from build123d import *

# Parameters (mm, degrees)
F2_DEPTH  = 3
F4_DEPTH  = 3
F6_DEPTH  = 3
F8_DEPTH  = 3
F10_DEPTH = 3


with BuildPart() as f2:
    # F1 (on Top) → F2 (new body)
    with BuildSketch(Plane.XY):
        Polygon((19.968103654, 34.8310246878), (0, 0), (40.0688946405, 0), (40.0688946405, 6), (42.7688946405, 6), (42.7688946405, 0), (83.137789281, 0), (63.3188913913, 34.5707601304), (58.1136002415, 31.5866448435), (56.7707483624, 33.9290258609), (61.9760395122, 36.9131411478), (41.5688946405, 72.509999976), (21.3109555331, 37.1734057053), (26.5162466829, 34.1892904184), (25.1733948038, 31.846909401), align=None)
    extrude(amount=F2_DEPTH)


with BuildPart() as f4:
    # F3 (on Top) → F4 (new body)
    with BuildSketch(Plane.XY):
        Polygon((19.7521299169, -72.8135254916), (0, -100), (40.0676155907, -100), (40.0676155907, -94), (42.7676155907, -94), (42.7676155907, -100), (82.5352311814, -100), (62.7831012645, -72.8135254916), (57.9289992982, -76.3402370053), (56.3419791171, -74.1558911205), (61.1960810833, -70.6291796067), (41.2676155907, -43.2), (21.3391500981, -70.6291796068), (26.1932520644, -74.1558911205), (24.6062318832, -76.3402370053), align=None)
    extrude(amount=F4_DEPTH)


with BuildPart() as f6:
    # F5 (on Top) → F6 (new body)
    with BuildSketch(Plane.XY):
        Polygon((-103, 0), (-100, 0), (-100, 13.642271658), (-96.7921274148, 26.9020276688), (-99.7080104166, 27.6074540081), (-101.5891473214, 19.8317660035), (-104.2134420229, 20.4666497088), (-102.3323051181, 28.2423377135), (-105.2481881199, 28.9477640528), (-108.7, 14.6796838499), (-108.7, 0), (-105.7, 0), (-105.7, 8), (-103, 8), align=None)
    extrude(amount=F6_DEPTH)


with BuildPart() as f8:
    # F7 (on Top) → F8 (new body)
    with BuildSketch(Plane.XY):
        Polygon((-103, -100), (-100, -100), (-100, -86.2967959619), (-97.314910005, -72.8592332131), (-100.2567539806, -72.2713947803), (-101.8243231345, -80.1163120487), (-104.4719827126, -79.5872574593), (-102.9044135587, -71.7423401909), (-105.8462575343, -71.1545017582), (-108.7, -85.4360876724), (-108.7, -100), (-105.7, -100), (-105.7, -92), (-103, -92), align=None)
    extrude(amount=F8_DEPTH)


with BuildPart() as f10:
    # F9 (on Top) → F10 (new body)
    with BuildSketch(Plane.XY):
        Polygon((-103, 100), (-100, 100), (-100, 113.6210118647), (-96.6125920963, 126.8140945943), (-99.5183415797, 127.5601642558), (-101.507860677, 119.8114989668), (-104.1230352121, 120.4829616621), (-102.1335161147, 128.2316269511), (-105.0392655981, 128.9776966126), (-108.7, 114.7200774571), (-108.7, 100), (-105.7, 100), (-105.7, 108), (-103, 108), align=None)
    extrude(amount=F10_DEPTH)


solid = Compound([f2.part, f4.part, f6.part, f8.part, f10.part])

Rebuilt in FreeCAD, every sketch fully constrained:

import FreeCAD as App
import Part
import Sketcher

V = App.Vector
Q = App.Units.Quantity

doc = App.newDocument("Part")
body = doc.addObject("PartDesign::Body", "Body")

# Sketch on XY plane
sketch1 = doc.addObject("Sketcher::SketchObject", "Sketch")
body.addObject(sketch1)
sketch1.AttachmentSupport = (doc.XY_Plane, [""])
sketch1.MapMode = "FlatFace"
sketch1.addGeometry(Part.LineSegment(V(20, 34.8, 0), V(0, 0, 0)), False)
sketch1.addGeometry(Part.LineSegment(V(0, 0, 0), V(40.1, 0, 0)), False)
sketch1.addGeometry(Part.LineSegment(V(40.1, 0, 0), V(40.1, 6, 0)), False)
sketch1.addGeometry(Part.LineSegment(V(40.1, 6, 0), V(42.8, 6, 0)), False)
sketch1.addGeometry(Part.LineSegment(V(42.8, 6, 0), V(42.8, 0, 0)), False)
sketch1.addGeometry(Part.LineSegment(V(42.8, 0, 0), V(83.1, 0, 0)), False)
sketch1.addGeometry(Part.LineSegment(V(83.1, 0, 0), V(63.3, 34.6, 0)), False)
sketch1.addGeometry(Part.LineSegment(V(63.3, 34.6, 0), V(58.1, 31.6, 0)), False)
sketch1.addGeometry(Part.LineSegment(V(58.1, 31.6, 0), V(56.8, 33.9, 0)), False)
sketch1.addGeometry(Part.LineSegment(V(56.8, 33.9, 0), V(62, 36.9, 0)), False)
sketch1.addGeometry(Part.LineSegment(V(62, 36.9, 0), V(41.6, 72.5, 0)), False)
sketch1.addGeometry(Part.LineSegment(V(41.6, 72.5, 0), V(21.3, 37.2, 0)), False)
sketch1.addGeometry(Part.LineSegment(V(21.3, 37.2, 0), V(26.5, 34.2, 0)), False)
sketch1.addGeometry(Part.LineSegment(V(26.5, 34.2, 0), V(25.2, 31.8, 0)), False)
sketch1.addGeometry(Part.LineSegment(V(25.2, 31.8, 0), V(20, 34.8, 0)), False)
sketch1.addConstraint(Sketcher.Constraint("Coincident", 0, 2, 1, 1))
sketch1.addConstraint(Sketcher.Constraint("Coincident", 1, 2, 2, 1))
sketch1.addConstraint(Sketcher.Constraint("Coincident", 2, 2, 3, 1))
sketch1.addConstraint(Sketcher.Constraint("Coincident", 3, 2, 4, 1))
sketch1.addConstraint(Sketcher.Constraint("Coincident", 4, 2, 5, 1))
sketch1.addConstraint(Sketcher.Constraint("Coincident", 5, 2, 6, 1))
sketch1.addConstraint(Sketcher.Constraint("Coincident", 6, 2, 7, 1))
sketch1.addConstraint(Sketcher.Constraint("Coincident", 7, 2, 8, 1))
sketch1.addConstraint(Sketcher.Constraint("Coincident", 8, 2, 9, 1))
sketch1.addConstraint(Sketcher.Constraint("Coincident", 9, 2, 10, 1))
sketch1.addConstraint(Sketcher.Constraint("Coincident", 10, 2, 11, 1))
sketch1.addConstraint(Sketcher.Constraint("Coincident", 11, 2, 12, 1))
sketch1.addConstraint(Sketcher.Constraint("Coincident", 12, 2, 13, 1))
sketch1.addConstraint(Sketcher.Constraint("Coincident", 13, 2, 14, 1))
sketch1.addConstraint(Sketcher.Constraint("Coincident", 14, 2, 0, 1))
sketch1.addConstraint(Sketcher.Constraint("Horizontal", 1))
sketch1.addConstraint(Sketcher.Constraint("Vertical", 2))
sketch1.addConstraint(Sketcher.Constraint("Horizontal", 3))
sketch1.addConstraint(Sketcher.Constraint("Vertical", 4))
sketch1.addConstraint(Sketcher.Constraint("Horizontal", 5))
sketch1.addConstraint(Sketcher.Constraint("Coincident", 0, 2, -1, 1))
sketch1.addConstraint(Sketcher.Constraint("PointOnObject", 4, 2, -1))
sketch1.addConstraint(Sketcher.Constraint("Perpendicular", 6, 7))
sketch1.addConstraint(Sketcher.Constraint("Perpendicular", 7, 8))
sketch1.addConstraint(Sketcher.Constraint("Perpendicular", 8, 9))
sketch1.addConstraint(Sketcher.Constraint("Perpendicular", 9, 10))
sketch1.addConstraint(Sketcher.Constraint("Parallel", 0, 11))
sketch1.addConstraint(Sketcher.Constraint("Perpendicular", 11, 12))
sketch1.addConstraint(Sketcher.Constraint("Perpendicular", 12, 13))
sketch1.addConstraint(Sketcher.Constraint("Perpendicular", 13, 14))
sketch1.addConstraint(Sketcher.Constraint("Equal", 7, 9))
sketch1.addConstraint(Sketcher.Constraint("Equal", 9, 12))
sketch1.addConstraint(Sketcher.Constraint("Equal", 8, 13))
sketch1.addConstraint(Sketcher.Constraint("Equal", 12, 14))
sketch1.addConstraint(Sketcher.Constraint("DistanceY", 2, 1, 2, 2, Q("6 mm")))
sketch1.addConstraint(Sketcher.Constraint("Distance", 7, Q("6 mm")))
sketch1.addConstraint(Sketcher.Constraint("DistanceX", 3, 1, 3, 2, Q("2.7 mm")))
sketch1.addConstraint(Sketcher.Constraint("Distance", 8, Q("2.7 mm")))
sketch1.addConstraint(Sketcher.Constraint("DistanceX", 10, 2, 3, 2, Q("1.2 mm")))
sketch1.addConstraint(Sketcher.Constraint("DistanceY", -1, 1, 10, 2, Q("72.51 mm")))
sketch1.addConstraint(Sketcher.Constraint("DistanceX", -1, 1, 7, 2, Q("58.1136 mm")))
sketch1.addConstraint(Sketcher.Constraint("DistanceX", 12, 2, 8, 2, Q("30.254502 mm")))
sketch1.addConstraint(Sketcher.Constraint("DistanceX", 13, 2, 2, 2, Q("14.8955 mm")))
sketch1.addConstraint(Sketcher.Constraint("Distance", 0, Q("40.148791 mm")))
pad1 = doc.addObject("PartDesign::Pad", "Pad")
body.addObject(pad1)
pad1.Profile = sketch1
pad1.Length = 3
body2 = doc.addObject("PartDesign::Body", "Body001")

# Sketch on XY plane
sketch2 = doc.addObject("Sketcher::SketchObject", "Sketch001")
body2.addObject(sketch2)
sketch2.AttachmentSupport = (doc.getObject("XY_Plane001"), [""])
sketch2.MapMode = "FlatFace"
sketch2.addGeometry(Part.LineSegment(V(19.8, -72.8, 0), V(0, -100, 0)), False)
sketch2.addGeometry(Part.LineSegment(V(0, -100, 0), V(40.1, -100, 0)), False)
sketch2.addGeometry(Part.LineSegment(V(40.1, -100, 0), V(40.1, -94, 0)), False)
sketch2.addGeometry(Part.LineSegment(V(40.1, -94, 0), V(42.8, -94, 0)), False)
sketch2.addGeometry(Part.LineSegment(V(42.8, -94, 0), V(42.8, -100, 0)), False)
sketch2.addGeometry(Part.LineSegment(V(42.8, -100, 0), V(82.5, -100, 0)), False)
sketch2.addGeometry(Part.LineSegment(V(82.5, -100, 0), V(62.8, -72.8, 0)), False)
sketch2.addGeometry(Part.LineSegment(V(62.8, -72.8, 0), V(57.9, -76.3, 0)), False)
sketch2.addGeometry(Part.LineSegment(V(57.9, -76.3, 0), V(56.3, -74.2, 0)), False)
sketch2.addGeometry(Part.LineSegment(V(56.3, -74.2, 0), V(61.2, -70.6, 0)), False)
sketch2.addGeometry(Part.LineSegment(V(61.2, -70.6, 0), V(41.3, -43.2, 0)), False)
sketch2.addGeometry(Part.LineSegment(V(41.3, -43.2, 0), V(21.3, -70.6, 0)), False)
sketch2.addGeometry(Part.LineSegment(V(21.3, -70.6, 0), V(26.2, -74.2, 0)), False)
sketch2.addGeometry(Part.LineSegment(V(26.2, -74.2, 0), V(24.6, -76.3, 0)), False)
sketch2.addGeometry(Part.LineSegment(V(24.6, -76.3, 0), V(19.8, -72.8, 0)), False)
sketch2.addConstraint(Sketcher.Constraint("Coincident", 0, 2, 1, 1))
sketch2.addConstraint(Sketcher.Constraint("Coincident", 1, 2, 2, 1))
sketch2.addConstraint(Sketcher.Constraint("Coincident", 2, 2, 3, 1))
sketch2.addConstraint(Sketcher.Constraint("Coincident", 3, 2, 4, 1))
sketch2.addConstraint(Sketcher.Constraint("Coincident", 4, 2, 5, 1))
sketch2.addConstraint(Sketcher.Constraint("Coincident", 5, 2, 6, 1))
sketch2.addConstraint(Sketcher.Constraint("Coincident", 6, 2, 7, 1))
sketch2.addConstraint(Sketcher.Constraint("Coincident", 7, 2, 8, 1))
sketch2.addConstraint(Sketcher.Constraint("Coincident", 8, 2, 9, 1))
sketch2.addConstraint(Sketcher.Constraint("Coincident", 9, 2, 10, 1))
sketch2.addConstraint(Sketcher.Constraint("Coincident", 10, 2, 11, 1))
sketch2.addConstraint(Sketcher.Constraint("Coincident", 11, 2, 12, 1))
sketch2.addConstraint(Sketcher.Constraint("Coincident", 12, 2, 13, 1))
sketch2.addConstraint(Sketcher.Constraint("Coincident", 13, 2, 14, 1))
sketch2.addConstraint(Sketcher.Constraint("Coincident", 14, 2, 0, 1))
sketch2.addConstraint(Sketcher.Constraint("Horizontal", 1))
sketch2.addConstraint(Sketcher.Constraint("Vertical", 2))
sketch2.addConstraint(Sketcher.Constraint("Horizontal", 3))
sketch2.addConstraint(Sketcher.Constraint("Vertical", 4))
sketch2.addConstraint(Sketcher.Constraint("Horizontal", 5))
sketch2.addConstraint(Sketcher.Constraint("PointOnObject", 0, 2, -2))
sketch2.addConstraint(Sketcher.Constraint("Perpendicular", 6, 7))
sketch2.addConstraint(Sketcher.Constraint("Perpendicular", 7, 8))
sketch2.addConstraint(Sketcher.Constraint("Perpendicular", 8, 9))
sketch2.addConstraint(Sketcher.Constraint("Perpendicular", 9, 10))
sketch2.addConstraint(Sketcher.Constraint("Parallel", 0, 11))
sketch2.addConstraint(Sketcher.Constraint("Perpendicular", 11, 12))
sketch2.addConstraint(Sketcher.Constraint("Perpendicular", 12, 13))
sketch2.addConstraint(Sketcher.Constraint("Perpendicular", 13, 14))
sketch2.addConstraint(Sketcher.Constraint("Horizontal", 1, 2, 4, 2))
sketch2.addConstraint(Sketcher.Constraint("Horizontal", 9, 2, 11, 2))
sketch2.addConstraint(Sketcher.Constraint("Horizontal", 8, 2, 12, 2))
sketch2.addConstraint(Sketcher.Constraint("Horizontal", 7, 2, 13, 2))
sketch2.addConstraint(Sketcher.Constraint("Horizontal", 6, 2, 14, 2))
sketch2.addConstraint(Sketcher.Constraint("Equal", 0, 6))
sketch2.addConstraint(Sketcher.Constraint("Equal", 7, 9))
sketch2.addConstraint(Sketcher.Constraint("DistanceY", 2, 1, 2, 2, Q("6 mm")))
sketch2.addConstraint(Sketcher.Constraint("Angle", 0, Q("-126 deg")))
sketch2.addConstraint(Sketcher.Constraint("Distance", 7, Q("6 mm")))
sketch2.addConstraint(Sketcher.Constraint("DistanceX", 3, 1, 3, 2, Q("2.7 mm")))
sketch2.addConstraint(Sketcher.Constraint("DistanceY", 0, 2, -1, 1, Q("100 mm")))
sketch2.addConstraint(Sketcher.Constraint("Distance", 8, Q("2.7 mm")))
sketch2.addConstraint(Sketcher.Constraint("DistanceY", 10, 2, -1, 1, Q("43.2 mm")))
sketch2.addConstraint(Sketcher.Constraint("DistanceX", 2, 2, 10, 2, Q("1.2 mm")))
sketch2.addConstraint(Sketcher.Constraint("DistanceX", -1, 1, 7, 2, Q("57.928999 mm")))
pad2 = doc.addObject("PartDesign::Pad", "Pad001")
body2.addObject(pad2)
pad2.Profile = sketch2
pad2.Length = 3
body3 = doc.addObject("PartDesign::Body", "Body002")

# Sketch on XY plane
sketch3 = doc.addObject("Sketcher::SketchObject", "Sketch002")
body3.addObject(sketch3)
sketch3.AttachmentSupport = (doc.getObject("XY_Plane002"), [""])
sketch3.MapMode = "FlatFace"
sketch3.addGeometry(Part.LineSegment(V(-103, 0, 0), V(-100, 0, 0)), False)
sketch3.addGeometry(Part.LineSegment(V(-100, 0, 0), V(-100, 13.6, 0)), False)
sketch3.addGeometry(Part.LineSegment(V(-100, 13.6, 0), V(-96.8, 26.9, 0)), False)
sketch3.addGeometry(Part.LineSegment(V(-96.8, 26.9, 0), V(-99.7, 27.6, 0)), False)
sketch3.addGeometry(Part.LineSegment(V(-99.7, 27.6, 0), V(-101.6, 19.8, 0)), False)
sketch3.addGeometry(Part.LineSegment(V(-101.6, 19.8, 0), V(-104.2, 20.5, 0)), False)
sketch3.addGeometry(Part.LineSegment(V(-104.2, 20.5, 0), V(-102.3, 28.2, 0)), False)
sketch3.addGeometry(Part.LineSegment(V(-102.3, 28.2, 0), V(-105.2, 28.9, 0)), False)
sketch3.addGeometry(Part.LineSegment(V(-105.2, 28.9, 0), V(-108.7, 14.7, 0)), False)
sketch3.addGeometry(Part.LineSegment(V(-108.7, 14.7, 0), V(-108.7, 0, 0)), False)
sketch3.addGeometry(Part.LineSegment(V(-108.7, 0, 0), V(-105.7, 0, 0)), False)
sketch3.addGeometry(Part.LineSegment(V(-105.7, 0, 0), V(-105.7, 8, 0)), False)
sketch3.addGeometry(Part.LineSegment(V(-105.7, 8, 0), V(-103, 8, 0)), False)
sketch3.addGeometry(Part.LineSegment(V(-103, 8, 0), V(-103, 0, 0)), False)
sketch3.addConstraint(Sketcher.Constraint("Coincident", 0, 2, 1, 1))
sketch3.addConstraint(Sketcher.Constraint("Coincident", 1, 2, 2, 1))
sketch3.addConstraint(Sketcher.Constraint("Coincident", 2, 2, 3, 1))
sketch3.addConstraint(Sketcher.Constraint("Coincident", 3, 2, 4, 1))
sketch3.addConstraint(Sketcher.Constraint("Coincident", 4, 2, 5, 1))
sketch3.addConstraint(Sketcher.Constraint("Coincident", 5, 2, 6, 1))
sketch3.addConstraint(Sketcher.Constraint("Coincident", 6, 2, 7, 1))
sketch3.addConstraint(Sketcher.Constraint("Coincident", 7, 2, 8, 1))
sketch3.addConstraint(Sketcher.Constraint("Coincident", 8, 2, 9, 1))
sketch3.addConstraint(Sketcher.Constraint("Coincident", 9, 2, 10, 1))
sketch3.addConstraint(Sketcher.Constraint("Coincident", 10, 2, 11, 1))
sketch3.addConstraint(Sketcher.Constraint("Coincident", 11, 2, 12, 1))
sketch3.addConstraint(Sketcher.Constraint("Coincident", 12, 2, 13, 1))
sketch3.addConstraint(Sketcher.Constraint("Coincident", 13, 2, 0, 1))
sketch3.addConstraint(Sketcher.Constraint("Horizontal", 0))
sketch3.addConstraint(Sketcher.Constraint("Vertical", 1))
sketch3.addConstraint(Sketcher.Constraint("Vertical", 9))
sketch3.addConstraint(Sketcher.Constraint("Horizontal", 10))
sketch3.addConstraint(Sketcher.Constraint("Vertical", 11))
sketch3.addConstraint(Sketcher.Constraint("Horizontal", 12))
sketch3.addConstraint(Sketcher.Constraint("Vertical", 13))
sketch3.addConstraint(Sketcher.Constraint("PointOnObject", 0, 2, -1))
sketch3.addConstraint(Sketcher.Constraint("PointOnObject", 9, 2, -1))
sketch3.addConstraint(Sketcher.Constraint("Perpendicular", 2, 3))
sketch3.addConstraint(Sketcher.Constraint("Perpendicular", 3, 4))
sketch3.addConstraint(Sketcher.Constraint("Perpendicular", 4, 5))
sketch3.addConstraint(Sketcher.Constraint("Perpendicular", 5, 6))
sketch3.addConstraint(Sketcher.Constraint("Perpendicular", 6, 7))
sketch3.addConstraint(Sketcher.Constraint("Perpendicular", 7, 8))
sketch3.addConstraint(Sketcher.Constraint("Equal", 0, 10))
sketch3.addConstraint(Sketcher.Constraint("Equal", 4, 6))
sketch3.addConstraint(Sketcher.Constraint("Equal", 3, 7))
sketch3.addConstraint(Sketcher.Constraint("DistanceX", 0, 1, 0, 2, Q("3 mm")))
sketch3.addConstraint(Sketcher.Constraint("DistanceY", 11, 1, 11, 2, Q("8 mm")))
sketch3.addConstraint(Sketcher.Constraint("Distance", 3, Q("3 mm")))
sketch3.addConstraint(Sketcher.Constraint("Distance", 4, Q("8 mm")))
sketch3.addConstraint(Sketcher.Constraint("DistanceX", 12, 1, 12, 2, Q("2.7 mm")))
sketch3.addConstraint(Sketcher.Constraint("DistanceX", 0, 2, -1, 1, Q("100 mm")))
sketch3.addConstraint(Sketcher.Constraint("Angle", 2, Q("76.4 deg")))
sketch3.addConstraint(Sketcher.Constraint("Distance", 5, Q("2.7 mm")))
sketch3.addConstraint(Sketcher.Constraint("DistanceY", 1, 1, 1, 2, Q("13.642272 mm")))
sketch3.addConstraint(Sketcher.Constraint("Distance", 2, Q("13.642272 mm")))
pad3 = doc.addObject("PartDesign::Pad", "Pad002")
body3.addObject(pad3)
pad3.Profile = sketch3
pad3.Length = 3
body4 = doc.addObject("PartDesign::Body", "Body003")

# Sketch on XY plane
sketch4 = doc.addObject("Sketcher::SketchObject", "Sketch003")
body4.addObject(sketch4)
sketch4.AttachmentSupport = (doc.getObject("XY_Plane003"), [""])
sketch4.MapMode = "FlatFace"
sketch4.addGeometry(Part.LineSegment(V(-103, -100, 0), V(-100, -100, 0)), False)
sketch4.addGeometry(Part.LineSegment(V(-100, -100, 0), V(-100, -86.3, 0)), False)
sketch4.addGeometry(Part.LineSegment(V(-100, -86.3, 0), V(-97.3, -72.9, 0)), False)
sketch4.addGeometry(Part.LineSegment(V(-97.3, -72.9, 0), V(-100.3, -72.3, 0)), False)
sketch4.addGeometry(Part.LineSegment(V(-100.3, -72.3, 0), V(-101.8, -80.1, 0)), False)
sketch4.addGeometry(Part.LineSegment(V(-101.8, -80.1, 0), V(-104.5, -79.6, 0)), False)
sketch4.addGeometry(Part.LineSegment(V(-104.5, -79.6, 0), V(-102.9, -71.7, 0)), False)
sketch4.addGeometry(Part.LineSegment(V(-102.9, -71.7, 0), V(-105.8, -71.2, 0)), False)
sketch4.addGeometry(Part.LineSegment(V(-105.8, -71.2, 0), V(-108.7, -85.4, 0)), False)
sketch4.addGeometry(Part.LineSegment(V(-108.7, -85.4, 0), V(-108.7, -100, 0)), False)
sketch4.addGeometry(Part.LineSegment(V(-108.7, -100, 0), V(-105.7, -100, 0)), False)
sketch4.addGeometry(Part.LineSegment(V(-105.7, -100, 0), V(-105.7, -92, 0)), False)
sketch4.addGeometry(Part.LineSegment(V(-105.7, -92, 0), V(-103, -92, 0)), False)
sketch4.addGeometry(Part.LineSegment(V(-103, -92, 0), V(-103, -100, 0)), False)
sketch4.addConstraint(Sketcher.Constraint("Coincident", 0, 2, 1, 1))
sketch4.addConstraint(Sketcher.Constraint("Coincident", 1, 2, 2, 1))
sketch4.addConstraint(Sketcher.Constraint("Coincident", 2, 2, 3, 1))
sketch4.addConstraint(Sketcher.Constraint("Coincident", 3, 2, 4, 1))
sketch4.addConstraint(Sketcher.Constraint("Coincident", 4, 2, 5, 1))
sketch4.addConstraint(Sketcher.Constraint("Coincident", 5, 2, 6, 1))
sketch4.addConstraint(Sketcher.Constraint("Coincident", 6, 2, 7, 1))
sketch4.addConstraint(Sketcher.Constraint("Coincident", 7, 2, 8, 1))
sketch4.addConstraint(Sketcher.Constraint("Coincident", 8, 2, 9, 1))
sketch4.addConstraint(Sketcher.Constraint("Coincident", 9, 2, 10, 1))
sketch4.addConstraint(Sketcher.Constraint("Coincident", 10, 2, 11, 1))
sketch4.addConstraint(Sketcher.Constraint("Coincident", 11, 2, 12, 1))
sketch4.addConstraint(Sketcher.Constraint("Coincident", 12, 2, 13, 1))
sketch4.addConstraint(Sketcher.Constraint("Coincident", 13, 2, 0, 1))
sketch4.addConstraint(Sketcher.Constraint("Horizontal", 0))
sketch4.addConstraint(Sketcher.Constraint("Vertical", 1))
sketch4.addConstraint(Sketcher.Constraint("Vertical", 9))
sketch4.addConstraint(Sketcher.Constraint("Horizontal", 10))
sketch4.addConstraint(Sketcher.Constraint("Vertical", 11))
sketch4.addConstraint(Sketcher.Constraint("Horizontal", 12))
sketch4.addConstraint(Sketcher.Constraint("Vertical", 13))
sketch4.addConstraint(Sketcher.Constraint("Perpendicular", 2, 3))
sketch4.addConstraint(Sketcher.Constraint("Perpendicular", 3, 4))
sketch4.addConstraint(Sketcher.Constraint("Perpendicular", 4, 5))
sketch4.addConstraint(Sketcher.Constraint("Perpendicular", 5, 6))
sketch4.addConstraint(Sketcher.Constraint("Perpendicular", 6, 7))
sketch4.addConstraint(Sketcher.Constraint("Perpendicular", 7, 8))
sketch4.addConstraint(Sketcher.Constraint("Horizontal", 0, 2, 9, 2))
sketch4.addConstraint(Sketcher.Constraint("Equal", 0, 10))
sketch4.addConstraint(Sketcher.Constraint("Equal", 4, 6))
sketch4.addConstraint(Sketcher.Constraint("Equal", 3, 7))
sketch4.addConstraint(Sketcher.Constraint("DistanceX", 0, 1, 0, 2, Q("3 mm")))
sketch4.addConstraint(Sketcher.Constraint("DistanceY", 11, 1, 11, 2, Q("8 mm")))
sketch4.addConstraint(Sketcher.Constraint("Distance", 3, Q("3 mm")))
sketch4.addConstraint(Sketcher.Constraint("Distance", 4, Q("8 mm")))
sketch4.addConstraint(Sketcher.Constraint("DistanceX", 12, 1, 12, 2, Q("2.7 mm")))
sketch4.addConstraint(Sketcher.Constraint("DistanceX", 0, 2, -1, 1, Q("100 mm")))
sketch4.addConstraint(Sketcher.Constraint("DistanceY", 0, 2, -1, 1, Q("100 mm")))
sketch4.addConstraint(Sketcher.Constraint("Angle", 2, Q("78.7 deg")))
sketch4.addConstraint(Sketcher.Constraint("Distance", 5, Q("2.7 mm")))
sketch4.addConstraint(Sketcher.Constraint("DistanceY", 7, 2, -1, 1, Q("71.154502 mm")))
sketch4.addConstraint(Sketcher.Constraint("DistanceY", 1, 2, 3, 2, Q("14.025401 mm")))
pad4 = doc.addObject("PartDesign::Pad", "Pad003")
body4.addObject(pad4)
pad4.Profile = sketch4
pad4.Length = 3
body5 = doc.addObject("PartDesign::Body", "Body004")

# Sketch on XY plane
sketch5 = doc.addObject("Sketcher::SketchObject", "Sketch004")
body5.addObject(sketch5)
sketch5.AttachmentSupport = (doc.getObject("XY_Plane004"), [""])
sketch5.MapMode = "FlatFace"
sketch5.addGeometry(Part.LineSegment(V(-103, 100, 0), V(-100, 100, 0)), False)
sketch5.addGeometry(Part.LineSegment(V(-100, 100, 0), V(-100, 113.6, 0)), False)
sketch5.addGeometry(Part.LineSegment(V(-100, 113.6, 0), V(-96.6, 126.8, 0)), False)
sketch5.addGeometry(Part.LineSegment(V(-96.6, 126.8, 0), V(-99.5, 127.6, 0)), False)
sketch5.addGeometry(Part.LineSegment(V(-99.5, 127.6, 0), V(-101.5, 119.8, 0)), False)
sketch5.addGeometry(Part.LineSegment(V(-101.5, 119.8, 0), V(-104.1, 120.5, 0)), False)
sketch5.addGeometry(Part.LineSegment(V(-104.1, 120.5, 0), V(-102.1, 128.2, 0)), False)
sketch5.addGeometry(Part.LineSegment(V(-102.1, 128.2, 0), V(-105, 129, 0)), False)
sketch5.addGeometry(Part.LineSegment(V(-105, 129, 0), V(-108.7, 114.7, 0)), False)
sketch5.addGeometry(Part.LineSegment(V(-108.7, 114.7, 0), V(-108.7, 100, 0)), False)
sketch5.addGeometry(Part.LineSegment(V(-108.7, 100, 0), V(-105.7, 100, 0)), False)
sketch5.addGeometry(Part.LineSegment(V(-105.7, 100, 0), V(-105.7, 108, 0)), False)
sketch5.addGeometry(Part.LineSegment(V(-105.7, 108, 0), V(-103, 108, 0)), False)
sketch5.addGeometry(Part.LineSegment(V(-103, 108, 0), V(-103, 100, 0)), False)
sketch5.addConstraint(Sketcher.Constraint("Coincident", 0, 2, 1, 1))
sketch5.addConstraint(Sketcher.Constraint("Coincident", 1, 2, 2, 1))
sketch5.addConstraint(Sketcher.Constraint("Coincident", 2, 2, 3, 1))
sketch5.addConstraint(Sketcher.Constraint("Coincident", 3, 2, 4, 1))
sketch5.addConstraint(Sketcher.Constraint("Coincident", 4, 2, 5, 1))
sketch5.addConstraint(Sketcher.Constraint("Coincident", 5, 2, 6, 1))
sketch5.addConstraint(Sketcher.Constraint("Coincident", 6, 2, 7, 1))
sketch5.addConstraint(Sketcher.Constraint("Coincident", 7, 2, 8, 1))
sketch5.addConstraint(Sketcher.Constraint("Coincident", 8, 2, 9, 1))
sketch5.addConstraint(Sketcher.Constraint("Coincident", 9, 2, 10, 1))
sketch5.addConstraint(Sketcher.Constraint("Coincident", 10, 2, 11, 1))
sketch5.addConstraint(Sketcher.Constraint("Coincident", 11, 2, 12, 1))
sketch5.addConstraint(Sketcher.Constraint("Coincident", 12, 2, 13, 1))
sketch5.addConstraint(Sketcher.Constraint("Coincident", 13, 2, 0, 1))
sketch5.addConstraint(Sketcher.Constraint("Horizontal", 0))
sketch5.addConstraint(Sketcher.Constraint("Vertical", 1))
sketch5.addConstraint(Sketcher.Constraint("Vertical", 9))
sketch5.addConstraint(Sketcher.Constraint("Horizontal", 10))
sketch5.addConstraint(Sketcher.Constraint("Vertical", 11))
sketch5.addConstraint(Sketcher.Constraint("Horizontal", 12))
sketch5.addConstraint(Sketcher.Constraint("Vertical", 13))
sketch5.addConstraint(Sketcher.Constraint("Perpendicular", 2, 3))
sketch5.addConstraint(Sketcher.Constraint("Perpendicular", 3, 4))
sketch5.addConstraint(Sketcher.Constraint("Perpendicular", 4, 5))
sketch5.addConstraint(Sketcher.Constraint("Perpendicular", 5, 6))
sketch5.addConstraint(Sketcher.Constraint("Perpendicular", 6, 7))
sketch5.addConstraint(Sketcher.Constraint("Perpendicular", 7, 8))
sketch5.addConstraint(Sketcher.Constraint("Horizontal", 0, 2, 9, 2))
sketch5.addConstraint(Sketcher.Constraint("Equal", 0, 10))
sketch5.addConstraint(Sketcher.Constraint("Equal", 4, 6))
sketch5.addConstraint(Sketcher.Constraint("Equal", 3, 7))
sketch5.addConstraint(Sketcher.Constraint("DistanceX", 0, 1, 0, 2, Q("3 mm")))
sketch5.addConstraint(Sketcher.Constraint("DistanceY", 11, 1, 11, 2, Q("8 mm")))
sketch5.addConstraint(Sketcher.Constraint("Distance", 3, Q("3 mm")))
sketch5.addConstraint(Sketcher.Constraint("Distance", 4, Q("8 mm")))
sketch5.addConstraint(Sketcher.Constraint("DistanceX", 12, 1, 12, 2, Q("2.7 mm")))
sketch5.addConstraint(Sketcher.Constraint("DistanceX", 0, 2, -1, 1, Q("100 mm")))
sketch5.addConstraint(Sketcher.Constraint("DistanceY", -1, 1, 0, 2, Q("100 mm")))
sketch5.addConstraint(Sketcher.Constraint("Angle", 2, Q("75.6 deg")))
sketch5.addConstraint(Sketcher.Constraint("Distance", 5, Q("2.7 mm")))
sketch5.addConstraint(Sketcher.Constraint("DistanceY", 1, 1, 1, 2, Q("13.621012 mm")))
sketch5.addConstraint(Sketcher.Constraint("DistanceY", -1, 1, 4, 2, Q("119.811499 mm")))
pad5 = doc.addObject("PartDesign::Pad", "Pad004")
body5.addObject(pad5)
pad5.Profile = sketch5
pad5.Length = 3

doc.recompute()
